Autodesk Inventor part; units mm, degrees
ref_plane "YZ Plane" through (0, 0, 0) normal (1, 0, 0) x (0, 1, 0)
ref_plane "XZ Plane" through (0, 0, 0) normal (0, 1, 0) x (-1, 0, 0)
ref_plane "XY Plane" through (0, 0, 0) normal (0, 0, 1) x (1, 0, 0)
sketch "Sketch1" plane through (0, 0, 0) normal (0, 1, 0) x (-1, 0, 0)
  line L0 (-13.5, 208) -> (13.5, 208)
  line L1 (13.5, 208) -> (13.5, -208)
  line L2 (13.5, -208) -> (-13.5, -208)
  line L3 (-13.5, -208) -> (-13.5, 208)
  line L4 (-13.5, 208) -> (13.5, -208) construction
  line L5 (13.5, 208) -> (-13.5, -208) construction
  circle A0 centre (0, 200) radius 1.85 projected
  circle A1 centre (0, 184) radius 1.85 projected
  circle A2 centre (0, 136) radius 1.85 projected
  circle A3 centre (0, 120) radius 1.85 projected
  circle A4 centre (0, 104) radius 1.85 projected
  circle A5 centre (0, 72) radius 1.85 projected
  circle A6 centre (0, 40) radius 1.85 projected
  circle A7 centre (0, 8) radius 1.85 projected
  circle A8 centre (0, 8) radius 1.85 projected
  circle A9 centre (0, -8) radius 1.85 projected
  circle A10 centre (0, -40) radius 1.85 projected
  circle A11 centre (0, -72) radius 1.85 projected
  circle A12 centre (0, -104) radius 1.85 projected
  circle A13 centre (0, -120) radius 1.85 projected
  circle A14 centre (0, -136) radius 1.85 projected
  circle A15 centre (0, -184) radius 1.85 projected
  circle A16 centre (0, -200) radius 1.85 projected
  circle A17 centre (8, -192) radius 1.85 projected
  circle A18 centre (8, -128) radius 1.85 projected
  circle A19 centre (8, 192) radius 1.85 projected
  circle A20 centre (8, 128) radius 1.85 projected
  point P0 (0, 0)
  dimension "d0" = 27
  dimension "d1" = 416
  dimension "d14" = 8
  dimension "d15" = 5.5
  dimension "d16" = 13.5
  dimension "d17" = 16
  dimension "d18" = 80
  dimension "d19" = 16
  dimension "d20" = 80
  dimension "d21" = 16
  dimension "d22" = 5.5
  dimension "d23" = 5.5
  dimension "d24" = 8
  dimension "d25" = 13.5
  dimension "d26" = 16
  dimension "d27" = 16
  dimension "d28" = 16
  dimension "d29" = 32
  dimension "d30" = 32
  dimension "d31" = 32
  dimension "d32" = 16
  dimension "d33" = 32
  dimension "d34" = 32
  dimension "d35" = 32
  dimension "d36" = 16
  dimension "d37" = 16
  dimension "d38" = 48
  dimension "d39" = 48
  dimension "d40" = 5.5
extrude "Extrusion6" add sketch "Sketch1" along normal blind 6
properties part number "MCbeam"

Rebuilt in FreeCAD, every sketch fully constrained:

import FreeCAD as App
import Part
import Sketcher

V = App.Vector
Q = App.Units.Quantity

doc = App.newDocument("Part")
params = doc.addObject("Spreadsheet::Sheet", "Params")
for row, (alias, value) in enumerate([
    ("sketch1_width", "27 mm"),
    ("sketch1_height", "416 mm"),
    ("sketch1_diameter", "3.7 mm"),
    ("pad1_length", "6 mm"),
], start=1):
    params.set(f"A{row}", alias)
    params.set(f"B{row}", "=" + value)
    params.setAlias(f"B{row}", alias)

body = doc.addObject("PartDesign::Body", "Body")

sketch1 = doc.addObject("Sketcher::SketchObject", "Sketch")
body.addObject(sketch1)
sketch1.AttachmentSupport = (doc.XZ_Plane, [""])
sketch1.MapMode = "FlatFace"
sketch1.addGeometry([
    Part.LineSegment(V(-13.5, 208, 0), V(13.5, 208, 0)),
    Part.LineSegment(V(13.5, 208, 0), V(13.5, -208, 0)),
    Part.LineSegment(V(13.5, -208, 0), V(-13.5, -208, 0)),
    Part.LineSegment(V(-13.5, -208, 0), V(-13.5, 208, 0)),
    Part.Circle(V(0, -200, 0), V(0, 0, 1), 1.9),
    Part.Circle(V(0, -184, 0), V(0, 0, 1), 1.9),
    Part.Circle(V(0, -136, 0), V(0, 0, 1), 1.9),
    Part.Circle(V(0, -120, 0), V(0, 0, 1), 1.9),
    Part.Circle(V(-8, -192, 0), V(0, 0, 1), 1.9),
    Part.Circle(V(-8, -128, 0), V(0, 0, 1), 1.9),
    Part.Circle(V(0, -104, 0), V(0, 0, 1), 1.9),
    Part.Circle(V(0, -72, 0), V(0, 0, 1), 1.9),
    Part.Circle(V(0, -40, 0), V(0, 0, 1), 1.9),
    Part.Circle(V(0, -8, 0), V(0, 0, 1), 1.9),
    Part.Circle(V(0, 8, 0), V(0, 0, 1), 1.9),
    Part.Circle(V(0, 40, 0), V(0, 0, 1), 1.9),
    Part.Circle(V(0, 72, 0), V(0, 0, 1), 1.9),
    Part.Circle(V(0, 104, 0), V(0, 0, 1), 1.9),
    Part.Circle(V(0, 120, 0), V(0, 0, 1), 1.9),
    Part.Circle(V(0, 136, 0), V(0, 0, 1), 1.9),
    Part.Circle(V(0, 184, 0), V(0, 0, 1), 1.9),
    Part.Circle(V(0, 200, 0), V(0, 0, 1), 1.9),
    Part.Circle(V(-8, 128, 0), V(0, 0, 1), 1.9),
    Part.Circle(V(-8, 192, 0), V(0, 0, 1), 1.9),
], False)
sketch1.addConstraint([
    Sketcher.Constraint("Coincident", 0, 2, 1, 1),
    Sketcher.Constraint("Coincident", 1, 2, 2, 1),
    Sketcher.Constraint("Coincident", 2, 2, 3, 1),
    Sketcher.Constraint("Coincident", 3, 2, 0, 1),
    Sketcher.Constraint("Horizontal", 0),
    Sketcher.Constraint("Vertical", 1),
    Sketcher.Constraint("Horizontal", 2),
    Sketcher.Constraint("Vertical", 3),
    Sketcher.Constraint("Equal", 4, 5),
    Sketcher.Constraint("Equal", 5, 6),
    Sketcher.Constraint("Equal", 6, 7),
    Sketcher.Constraint("Equal", 7, 8),
    Sketcher.Constraint("Equal", 8, 9),
    Sketcher.Constraint("Equal", 9, 10),
    Sketcher.Constraint("Equal", 10, 11),
    Sketcher.Constraint("Equal", 11, 12),
    Sketcher.Constraint("Equal", 12, 13),
    Sketcher.Constraint("Equal", 13, 14),
    Sketcher.Constraint("Equal", 14, 15),
    Sketcher.Constraint("Equal", 15, 16),
    Sketcher.Constraint("Equal", 16, 17),
    Sketcher.Constraint("Equal", 17, 18),
    Sketcher.Constraint("Equal", 18, 19),
    Sketcher.Constraint("Equal", 19, 20),
    Sketcher.Constraint("Equal", 20, 21),
    Sketcher.Constraint("Equal", 21, 22),
    Sketcher.Constraint("Equal", 22, 23),
    Sketcher.Constraint("Symmetric", 13, 3, 14, 3, -1, 1),
    Sketcher.Constraint("Symmetric", 12, 3, 15, 3, -1, 1),
    Sketcher.Constraint("Symmetric", 11, 3, 16, 3, -1, 1),
    Sketcher.Constraint("Symmetric", 10, 3, 17, 3, -1, 1),
    Sketcher.Constraint("Symmetric", 7, 3, 18, 3, -1, 1),
    Sketcher.Constraint("Symmetric", 6, 3, 19, 3, -1, 1),
    Sketcher.Constraint("Symmetric", 5, 3, 20, 3, -1, 1),
    Sketcher.Constraint("Symmetric", 4, 3, 21, 3, -1, 1),
    Sketcher.Constraint("Symmetric", 0, 2, 2, 2, -1, 1),
    Sketcher.Constraint("Symmetric", 9, 3, 22, 3, -1),
    Sketcher.Constraint("Symmetric", 8, 3, 23, 3, -1),
    Sketcher.Constraint("PointOnObject", 4, 3, -2),
    Sketcher.Constraint("PointOnObject", 5, 3, -2),
    Sketcher.Constraint("PointOnObject", 6, 3, -2),
    Sketcher.Constraint("PointOnObject", 7, 3, -2),
    Sketcher.Constraint("PointOnObject", 10, 3, -2),
    Sketcher.Constraint("PointOnObject", 11, 3, -2),
    Sketcher.Constraint("PointOnObject", 12, 3, -2),
    Sketcher.Constraint("PointOnObject", 13, 3, -2),
    Sketcher.Constraint("Vertical", 8, 3, 9, 3),
    Sketcher.Constraint("DistanceX", 0, 1, 0, 2, Q("27 mm")),
    Sketcher.Constraint("DistanceY", 1, 2, 1, 1, Q("416 mm")),
    Sketcher.Constraint("DistanceX", 8, 3, -1, 1, Q("8 mm")),
    Sketcher.Constraint("DistanceY", 13, 3, -1, 1, Q("8 mm")),
    Sketcher.Constraint("DistanceY", 4, 3, 5, 3, Q("16 mm")),
    Sketcher.Constraint("DistanceY", 5, 3, 6, 3, Q("48 mm")),
    Sketcher.Constraint("DistanceY", 6, 3, 7, 3, Q("16 mm")),
    Sketcher.Constraint("DistanceY", 4, 3, 8, 3, Q("8 mm")),
    Sketcher.Constraint("DistanceY", 6, 3, 9, 3, Q("8 mm")),
    Sketcher.Constraint("DistanceY", 7, 3, 10, 3, Q("16 mm")),
    Sketcher.Constraint("DistanceY", 10, 3, 11, 3, Q("32 mm")),
    Sketcher.Constraint("DistanceY", 11, 3, 12, 3, Q("32 mm")),
    Sketcher.Constraint("DistanceY", 12, 3, 13, 3, Q("32 mm")),
    Sketcher.Constraint("Diameter", 4, Q("3.7 mm")),
])
sketch1.setExpression("Constraints[47]", "Params.sketch1_width")
sketch1.setExpression("Constraints[48]", "Params.sketch1_height")
sketch1.setExpression("Constraints[60]", "Params.sketch1_diameter")
pad1 = doc.addObject("PartDesign::Pad", "Pad")
body.addObject(pad1)
pad1.Profile = sketch1
pad1.setExpression("Length", "Params.pad1_length")
pad1.Reversed = True

doc.recompute()
